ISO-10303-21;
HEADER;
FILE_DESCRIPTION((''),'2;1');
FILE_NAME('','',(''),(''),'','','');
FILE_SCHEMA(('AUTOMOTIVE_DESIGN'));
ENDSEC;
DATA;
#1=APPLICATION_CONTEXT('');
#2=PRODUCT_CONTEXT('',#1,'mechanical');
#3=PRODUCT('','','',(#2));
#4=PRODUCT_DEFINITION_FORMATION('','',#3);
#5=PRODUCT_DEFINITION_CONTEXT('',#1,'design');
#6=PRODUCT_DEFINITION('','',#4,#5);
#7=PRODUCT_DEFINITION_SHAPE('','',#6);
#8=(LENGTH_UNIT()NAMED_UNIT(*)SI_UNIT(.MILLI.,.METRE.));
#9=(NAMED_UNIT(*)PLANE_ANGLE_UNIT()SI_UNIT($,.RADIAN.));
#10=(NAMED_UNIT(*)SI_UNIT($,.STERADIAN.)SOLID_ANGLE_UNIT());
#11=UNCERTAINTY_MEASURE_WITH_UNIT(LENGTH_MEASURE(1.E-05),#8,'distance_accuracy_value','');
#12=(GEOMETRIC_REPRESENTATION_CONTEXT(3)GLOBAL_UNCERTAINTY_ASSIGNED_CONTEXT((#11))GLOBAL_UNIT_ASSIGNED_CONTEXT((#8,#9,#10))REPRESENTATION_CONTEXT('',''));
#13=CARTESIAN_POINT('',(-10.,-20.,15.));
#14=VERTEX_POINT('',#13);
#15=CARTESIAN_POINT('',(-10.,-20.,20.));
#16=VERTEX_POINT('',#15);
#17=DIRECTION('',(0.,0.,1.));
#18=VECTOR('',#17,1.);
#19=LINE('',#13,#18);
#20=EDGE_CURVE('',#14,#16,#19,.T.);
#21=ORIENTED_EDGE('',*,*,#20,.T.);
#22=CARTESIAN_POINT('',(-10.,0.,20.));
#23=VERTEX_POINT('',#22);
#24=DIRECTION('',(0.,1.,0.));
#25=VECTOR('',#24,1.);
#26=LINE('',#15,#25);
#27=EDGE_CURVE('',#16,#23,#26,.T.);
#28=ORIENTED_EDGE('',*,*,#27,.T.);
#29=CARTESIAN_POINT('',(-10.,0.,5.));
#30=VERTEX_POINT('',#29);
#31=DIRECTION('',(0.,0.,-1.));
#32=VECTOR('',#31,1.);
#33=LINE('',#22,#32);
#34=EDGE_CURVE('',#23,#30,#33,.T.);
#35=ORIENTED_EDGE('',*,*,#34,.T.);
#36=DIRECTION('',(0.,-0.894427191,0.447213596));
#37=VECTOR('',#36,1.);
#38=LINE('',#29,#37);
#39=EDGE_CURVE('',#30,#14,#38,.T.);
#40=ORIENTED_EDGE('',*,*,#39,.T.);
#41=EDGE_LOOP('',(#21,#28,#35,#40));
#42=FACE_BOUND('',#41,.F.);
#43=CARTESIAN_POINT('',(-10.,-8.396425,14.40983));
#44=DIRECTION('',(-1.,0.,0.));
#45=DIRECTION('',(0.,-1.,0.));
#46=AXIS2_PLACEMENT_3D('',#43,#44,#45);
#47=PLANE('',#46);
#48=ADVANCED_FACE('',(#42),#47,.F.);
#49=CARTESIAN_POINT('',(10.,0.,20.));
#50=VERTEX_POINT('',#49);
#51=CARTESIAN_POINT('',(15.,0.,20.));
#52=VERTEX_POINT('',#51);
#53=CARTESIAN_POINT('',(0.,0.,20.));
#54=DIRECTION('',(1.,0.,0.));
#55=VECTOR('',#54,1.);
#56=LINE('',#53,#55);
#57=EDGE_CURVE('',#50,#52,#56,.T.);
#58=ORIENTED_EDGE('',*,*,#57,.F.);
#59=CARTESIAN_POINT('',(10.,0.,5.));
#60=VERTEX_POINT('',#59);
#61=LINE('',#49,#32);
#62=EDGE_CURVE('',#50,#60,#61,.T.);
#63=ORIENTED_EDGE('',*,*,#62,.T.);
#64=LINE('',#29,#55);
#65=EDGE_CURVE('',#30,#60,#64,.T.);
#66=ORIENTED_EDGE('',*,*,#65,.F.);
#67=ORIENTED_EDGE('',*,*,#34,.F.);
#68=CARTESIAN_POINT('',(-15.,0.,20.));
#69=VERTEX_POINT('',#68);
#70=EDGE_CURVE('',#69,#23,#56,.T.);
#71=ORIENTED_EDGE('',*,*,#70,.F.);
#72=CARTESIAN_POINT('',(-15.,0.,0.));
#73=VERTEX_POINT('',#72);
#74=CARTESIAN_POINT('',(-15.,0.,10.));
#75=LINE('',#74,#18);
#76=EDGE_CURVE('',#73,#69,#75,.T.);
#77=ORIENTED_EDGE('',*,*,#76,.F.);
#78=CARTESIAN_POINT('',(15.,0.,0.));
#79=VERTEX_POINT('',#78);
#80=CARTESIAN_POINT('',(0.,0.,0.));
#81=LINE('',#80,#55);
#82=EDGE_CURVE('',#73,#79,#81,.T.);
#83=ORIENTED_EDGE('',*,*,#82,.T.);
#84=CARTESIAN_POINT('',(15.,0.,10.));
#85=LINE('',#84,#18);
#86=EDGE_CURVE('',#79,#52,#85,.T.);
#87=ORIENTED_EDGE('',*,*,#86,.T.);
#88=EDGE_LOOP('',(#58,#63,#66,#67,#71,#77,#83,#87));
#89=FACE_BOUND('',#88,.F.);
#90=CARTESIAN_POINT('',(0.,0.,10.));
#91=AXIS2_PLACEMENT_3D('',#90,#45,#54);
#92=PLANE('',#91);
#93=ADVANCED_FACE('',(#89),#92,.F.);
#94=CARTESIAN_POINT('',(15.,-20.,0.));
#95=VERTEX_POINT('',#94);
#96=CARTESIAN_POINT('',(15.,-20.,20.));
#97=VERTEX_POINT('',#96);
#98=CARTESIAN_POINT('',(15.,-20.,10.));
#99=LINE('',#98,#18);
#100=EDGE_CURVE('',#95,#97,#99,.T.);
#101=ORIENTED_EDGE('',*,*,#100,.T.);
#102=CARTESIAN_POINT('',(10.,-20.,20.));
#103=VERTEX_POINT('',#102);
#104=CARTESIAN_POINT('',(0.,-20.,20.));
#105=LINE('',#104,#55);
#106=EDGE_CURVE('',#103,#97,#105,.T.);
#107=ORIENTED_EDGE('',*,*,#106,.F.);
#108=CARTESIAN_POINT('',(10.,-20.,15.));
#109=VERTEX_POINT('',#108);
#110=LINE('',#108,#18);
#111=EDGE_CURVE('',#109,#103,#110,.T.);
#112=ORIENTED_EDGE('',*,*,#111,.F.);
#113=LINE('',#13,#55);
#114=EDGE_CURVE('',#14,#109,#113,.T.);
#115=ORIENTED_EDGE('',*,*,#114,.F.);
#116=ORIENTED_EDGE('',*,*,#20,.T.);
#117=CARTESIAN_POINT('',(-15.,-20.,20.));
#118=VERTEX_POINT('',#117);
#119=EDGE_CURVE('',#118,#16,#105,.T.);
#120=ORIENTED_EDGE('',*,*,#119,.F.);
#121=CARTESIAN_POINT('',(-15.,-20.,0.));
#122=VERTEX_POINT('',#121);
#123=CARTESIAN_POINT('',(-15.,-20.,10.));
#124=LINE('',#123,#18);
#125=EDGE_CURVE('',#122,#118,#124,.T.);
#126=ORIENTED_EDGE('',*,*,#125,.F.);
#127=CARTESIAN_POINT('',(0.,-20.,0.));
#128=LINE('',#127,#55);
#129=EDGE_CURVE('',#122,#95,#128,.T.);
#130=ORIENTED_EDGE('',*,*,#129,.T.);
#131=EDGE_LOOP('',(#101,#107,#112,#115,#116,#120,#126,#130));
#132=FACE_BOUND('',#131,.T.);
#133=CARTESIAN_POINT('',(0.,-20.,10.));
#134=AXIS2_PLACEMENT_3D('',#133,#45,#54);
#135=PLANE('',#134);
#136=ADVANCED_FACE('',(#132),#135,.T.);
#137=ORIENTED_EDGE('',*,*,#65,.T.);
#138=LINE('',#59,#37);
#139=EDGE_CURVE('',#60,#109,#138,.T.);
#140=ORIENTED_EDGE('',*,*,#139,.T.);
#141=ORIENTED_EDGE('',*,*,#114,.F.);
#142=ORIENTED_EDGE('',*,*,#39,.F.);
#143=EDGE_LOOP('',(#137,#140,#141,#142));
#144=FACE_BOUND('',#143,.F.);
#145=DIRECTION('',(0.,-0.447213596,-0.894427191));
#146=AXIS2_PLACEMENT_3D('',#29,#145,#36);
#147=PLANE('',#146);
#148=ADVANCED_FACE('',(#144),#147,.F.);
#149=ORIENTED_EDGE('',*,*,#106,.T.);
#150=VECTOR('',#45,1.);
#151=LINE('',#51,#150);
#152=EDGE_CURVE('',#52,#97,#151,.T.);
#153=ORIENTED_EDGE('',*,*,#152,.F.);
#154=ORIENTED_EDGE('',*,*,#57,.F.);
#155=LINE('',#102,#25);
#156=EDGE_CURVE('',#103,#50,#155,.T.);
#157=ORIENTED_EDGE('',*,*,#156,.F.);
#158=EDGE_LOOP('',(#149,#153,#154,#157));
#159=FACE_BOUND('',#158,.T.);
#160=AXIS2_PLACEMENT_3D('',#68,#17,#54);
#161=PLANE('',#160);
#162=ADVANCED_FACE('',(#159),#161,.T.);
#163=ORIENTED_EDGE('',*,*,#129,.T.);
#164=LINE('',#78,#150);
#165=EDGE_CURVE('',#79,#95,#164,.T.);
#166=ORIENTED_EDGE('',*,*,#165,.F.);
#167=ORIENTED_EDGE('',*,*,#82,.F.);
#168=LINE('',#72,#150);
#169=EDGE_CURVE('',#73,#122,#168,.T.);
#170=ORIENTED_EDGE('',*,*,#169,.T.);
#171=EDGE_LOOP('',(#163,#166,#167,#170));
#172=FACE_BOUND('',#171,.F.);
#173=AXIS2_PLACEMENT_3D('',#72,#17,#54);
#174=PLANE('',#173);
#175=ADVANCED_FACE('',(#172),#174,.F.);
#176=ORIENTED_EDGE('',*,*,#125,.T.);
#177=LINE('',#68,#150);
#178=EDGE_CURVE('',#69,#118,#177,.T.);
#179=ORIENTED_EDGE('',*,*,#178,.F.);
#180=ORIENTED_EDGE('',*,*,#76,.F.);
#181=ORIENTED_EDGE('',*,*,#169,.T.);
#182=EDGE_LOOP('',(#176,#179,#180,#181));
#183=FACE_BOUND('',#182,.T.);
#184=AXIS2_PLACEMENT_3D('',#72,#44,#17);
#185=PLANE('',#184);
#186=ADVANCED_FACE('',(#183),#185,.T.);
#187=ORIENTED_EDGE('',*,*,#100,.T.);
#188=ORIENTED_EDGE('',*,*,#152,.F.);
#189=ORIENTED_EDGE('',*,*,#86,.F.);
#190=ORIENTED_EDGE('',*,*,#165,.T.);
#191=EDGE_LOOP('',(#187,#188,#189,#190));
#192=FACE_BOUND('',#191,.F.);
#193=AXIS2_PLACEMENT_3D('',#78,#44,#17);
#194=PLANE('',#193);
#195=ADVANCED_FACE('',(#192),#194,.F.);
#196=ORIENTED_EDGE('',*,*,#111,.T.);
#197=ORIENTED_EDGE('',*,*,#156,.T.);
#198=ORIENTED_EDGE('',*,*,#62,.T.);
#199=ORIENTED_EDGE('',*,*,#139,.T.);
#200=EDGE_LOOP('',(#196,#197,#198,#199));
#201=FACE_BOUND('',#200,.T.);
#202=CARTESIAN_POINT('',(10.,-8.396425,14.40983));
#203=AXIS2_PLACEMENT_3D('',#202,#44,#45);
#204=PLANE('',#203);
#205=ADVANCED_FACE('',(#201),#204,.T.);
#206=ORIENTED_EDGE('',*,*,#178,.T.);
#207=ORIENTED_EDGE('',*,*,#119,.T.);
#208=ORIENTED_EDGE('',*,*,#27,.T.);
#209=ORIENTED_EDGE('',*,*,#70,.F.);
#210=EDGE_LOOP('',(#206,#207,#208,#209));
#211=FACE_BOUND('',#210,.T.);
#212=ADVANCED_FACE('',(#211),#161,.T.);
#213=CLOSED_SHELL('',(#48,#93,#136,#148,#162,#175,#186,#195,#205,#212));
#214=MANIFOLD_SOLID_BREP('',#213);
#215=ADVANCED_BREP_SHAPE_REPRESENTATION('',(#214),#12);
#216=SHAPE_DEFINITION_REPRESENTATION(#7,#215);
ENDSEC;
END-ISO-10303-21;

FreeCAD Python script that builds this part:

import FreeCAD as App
import Part
import Sketcher

V = App.Vector

doc = App.newDocument("Part")
body = doc.addObject("PartDesign::Body", "Body")

# Sketch on XZ plane
sketch1 = doc.addObject("Sketcher::SketchObject", "Sketch")
body.addObject(sketch1)
sketch1.AttachmentSupport = (doc.XZ_Plane, [""])
sketch1.MapMode = "FlatFace"
sketch1.addGeometry([
    Part.LineSegment(V(-15, 20, 0), V(-15, 0, 0)),
    Part.LineSegment(V(-15, 0, 0), V(15, 0, 0)),
    Part.LineSegment(V(15, 0, 0), V(15, 20, 0)),
    Part.LineSegment(V(15, 20, 0), V(-15, 20, 0)),
], False)
sketch1.addConstraint([
    Sketcher.Constraint("Coincident", 0, 2, 1, 1),
    Sketcher.Constraint("Coincident", 1, 2, 2, 1),
    Sketcher.Constraint("Coincident", 2, 2, 3, 1),
    Sketcher.Constraint("Coincident", 3, 2, 0, 1),
    Sketcher.Constraint("Vertical", 0),
    Sketcher.Constraint("Horizontal", 1),
    Sketcher.Constraint("Vertical", 2),
    Sketcher.Constraint("Horizontal", 3),
    Sketcher.Constraint("Symmetric", 0, 2, 1, 2, -1, 1),
    Sketcher.Constraint("DistanceX", 1, 1, 1, 2, 30.0),
    Sketcher.Constraint("DistanceY", 0, 2, 0, 1, 20.0),
])
pad1 = doc.addObject("PartDesign::Pad", "Pad")
body.addObject(pad1)
pad1.Profile = sketch1
pad1.Length = 20

# Sketch on YZ plane
sketch2 = doc.addObject("Sketcher::SketchObject", "Sketch001")
body.addObject(sketch2)
sketch2.AttachmentSupport = (doc.YZ_Plane, [""])
sketch2.MapMode = "FlatFace"
sketch2.AttachmentOffset = App.Placement(V(0, 0, -10), App.Rotation())
sketch2.addGeometry([
    Part.LineSegment(V(0, 5, 0), V(-20, 15, 0)),
    Part.LineSegment(V(-20, 15, 0), V(-20, 20, 0)),
    Part.LineSegment(V(-20, 20, 0), V(0, 20, 0)),
    Part.LineSegment(V(0, 20, 0), V(0, 5, 0)),
], False)
sketch2.addConstraint([
    Sketcher.Constraint("Coincident", 0, 2, 1, 1),
    Sketcher.Constraint("Coincident", 1, 2, 2, 1),
    Sketcher.Constraint("Coincident", 2, 2, 3, 1),
    Sketcher.Constraint("Coincident", 3, 2, 0, 1),
    Sketcher.Constraint("Vertical", 1),
    Sketcher.Constraint("Horizontal", 2),
    Sketcher.Constraint("Vertical", 3),
    Sketcher.Constraint("PointOnObject", 2, 2, -2),
    Sketcher.Constraint("DistanceX", 2, 1, 2, 2, 20.0),
    Sketcher.Constraint("DistanceY", 1, 1, 1, 2, 5.0),
    Sketcher.Constraint("DistanceY", 3, 2, 3, 1, 15.0),
    Sketcher.Constraint("DistanceY", -1, 1, 0, 2, 15.0),
])
pocket1 = doc.addObject("PartDesign::Pocket", "Pocket")
body.addObject(pocket1)
pocket1.Profile = sketch2
pocket1.Length = 20
pocket1.Reversed = True

doc.recompute()
